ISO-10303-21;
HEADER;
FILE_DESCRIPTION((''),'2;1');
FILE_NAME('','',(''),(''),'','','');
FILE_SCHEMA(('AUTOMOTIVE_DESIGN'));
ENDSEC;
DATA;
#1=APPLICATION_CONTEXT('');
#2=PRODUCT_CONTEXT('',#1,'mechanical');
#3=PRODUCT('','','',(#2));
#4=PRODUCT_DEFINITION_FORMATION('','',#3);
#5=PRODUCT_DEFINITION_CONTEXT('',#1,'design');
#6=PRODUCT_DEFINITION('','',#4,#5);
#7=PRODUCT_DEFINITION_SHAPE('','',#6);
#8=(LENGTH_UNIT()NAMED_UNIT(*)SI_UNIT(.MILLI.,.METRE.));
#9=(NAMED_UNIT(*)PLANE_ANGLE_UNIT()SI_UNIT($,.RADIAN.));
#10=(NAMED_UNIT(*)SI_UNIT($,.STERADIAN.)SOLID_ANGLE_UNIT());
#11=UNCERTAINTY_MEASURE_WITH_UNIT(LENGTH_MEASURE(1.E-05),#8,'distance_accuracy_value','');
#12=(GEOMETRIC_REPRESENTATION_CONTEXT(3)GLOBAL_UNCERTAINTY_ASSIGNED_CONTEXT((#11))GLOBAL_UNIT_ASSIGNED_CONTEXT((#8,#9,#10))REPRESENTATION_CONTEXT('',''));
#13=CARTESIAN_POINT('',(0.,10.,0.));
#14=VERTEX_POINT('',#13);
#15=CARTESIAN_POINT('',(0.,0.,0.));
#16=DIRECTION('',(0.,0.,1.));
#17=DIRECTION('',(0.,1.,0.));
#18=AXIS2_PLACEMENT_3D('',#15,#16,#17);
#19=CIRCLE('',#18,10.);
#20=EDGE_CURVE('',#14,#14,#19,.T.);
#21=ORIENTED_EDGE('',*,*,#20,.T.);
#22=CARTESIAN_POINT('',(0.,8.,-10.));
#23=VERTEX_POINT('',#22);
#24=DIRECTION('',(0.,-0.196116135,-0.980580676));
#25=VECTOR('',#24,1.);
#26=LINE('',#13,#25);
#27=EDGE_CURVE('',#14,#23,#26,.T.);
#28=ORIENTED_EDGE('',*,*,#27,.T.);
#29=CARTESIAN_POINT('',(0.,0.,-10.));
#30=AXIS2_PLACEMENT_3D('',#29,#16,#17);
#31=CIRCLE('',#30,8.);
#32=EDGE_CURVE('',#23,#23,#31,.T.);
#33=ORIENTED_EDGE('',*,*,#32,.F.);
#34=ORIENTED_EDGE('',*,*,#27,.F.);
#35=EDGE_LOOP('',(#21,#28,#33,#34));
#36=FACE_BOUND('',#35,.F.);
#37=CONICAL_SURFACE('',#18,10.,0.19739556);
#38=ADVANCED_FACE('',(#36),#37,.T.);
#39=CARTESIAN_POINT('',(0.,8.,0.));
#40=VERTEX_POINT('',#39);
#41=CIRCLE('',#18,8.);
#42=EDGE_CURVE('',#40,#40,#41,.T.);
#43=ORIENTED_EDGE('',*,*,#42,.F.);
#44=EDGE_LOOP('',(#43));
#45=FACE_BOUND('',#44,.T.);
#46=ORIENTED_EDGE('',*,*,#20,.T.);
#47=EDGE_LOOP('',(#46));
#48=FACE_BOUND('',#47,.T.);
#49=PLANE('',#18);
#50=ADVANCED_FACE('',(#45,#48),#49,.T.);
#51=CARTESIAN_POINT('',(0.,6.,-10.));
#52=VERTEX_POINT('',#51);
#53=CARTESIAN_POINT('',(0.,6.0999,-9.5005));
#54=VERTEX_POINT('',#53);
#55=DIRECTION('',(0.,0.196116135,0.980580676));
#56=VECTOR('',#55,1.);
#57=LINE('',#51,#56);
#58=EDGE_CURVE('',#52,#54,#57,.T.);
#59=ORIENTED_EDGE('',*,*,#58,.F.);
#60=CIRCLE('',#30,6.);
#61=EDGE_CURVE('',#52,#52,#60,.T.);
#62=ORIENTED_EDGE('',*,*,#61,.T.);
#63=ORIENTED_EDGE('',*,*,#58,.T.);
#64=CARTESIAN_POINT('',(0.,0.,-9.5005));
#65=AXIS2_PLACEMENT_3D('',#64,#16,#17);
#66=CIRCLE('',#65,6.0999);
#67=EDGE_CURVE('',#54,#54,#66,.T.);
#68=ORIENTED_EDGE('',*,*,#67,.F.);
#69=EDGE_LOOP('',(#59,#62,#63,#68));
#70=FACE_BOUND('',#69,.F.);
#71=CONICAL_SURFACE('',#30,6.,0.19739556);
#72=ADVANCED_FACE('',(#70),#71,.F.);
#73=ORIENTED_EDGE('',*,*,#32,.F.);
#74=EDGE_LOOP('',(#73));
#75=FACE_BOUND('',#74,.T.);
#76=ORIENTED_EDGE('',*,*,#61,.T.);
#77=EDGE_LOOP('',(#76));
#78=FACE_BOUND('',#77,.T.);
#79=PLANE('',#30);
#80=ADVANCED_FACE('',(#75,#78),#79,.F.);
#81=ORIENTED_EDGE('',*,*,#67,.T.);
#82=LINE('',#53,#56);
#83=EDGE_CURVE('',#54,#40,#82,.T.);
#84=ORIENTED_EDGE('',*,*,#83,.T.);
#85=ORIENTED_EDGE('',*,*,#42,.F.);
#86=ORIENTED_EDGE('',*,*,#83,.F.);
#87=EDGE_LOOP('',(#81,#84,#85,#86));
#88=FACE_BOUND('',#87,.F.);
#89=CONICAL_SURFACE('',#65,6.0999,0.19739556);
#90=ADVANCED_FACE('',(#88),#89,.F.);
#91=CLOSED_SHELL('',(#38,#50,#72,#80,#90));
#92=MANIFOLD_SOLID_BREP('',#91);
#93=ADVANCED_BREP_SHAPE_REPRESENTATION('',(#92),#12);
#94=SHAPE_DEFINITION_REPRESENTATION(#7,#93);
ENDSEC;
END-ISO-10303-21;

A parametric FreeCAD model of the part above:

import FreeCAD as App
import Part
import Sketcher

V = App.Vector
Q = App.Units.Quantity

doc = App.newDocument("Part")
body = doc.addObject("PartDesign::Body", "Body")

sketch1 = body.newObject("Sketcher::SketchObject", "Sketch")
sketch1.AttachmentSupport = (doc.getObject("YZ_Plane"), [""])
sketch1.MapMode = "FlatFace"
sketch1.addGeometry([
    Part.LineSegment(V(8, -10, 0), V(10, 0, 0)),
    Part.LineSegment(V(10, 0, 0), V(8, 0, 0)),
    Part.LineSegment(V(8, 0, 0), V(6, -10, 0)),
    Part.LineSegment(V(6, -10, 0), V(8, -10, 0)),
], False)
sketch1.addConstraint([
    Sketcher.Constraint("Coincident", 0, 2, 1, 1),
    Sketcher.Constraint("Coincident", 1, 2, 2, 1),
    Sketcher.Constraint("Coincident", 2, 2, 3, 1),
    Sketcher.Constraint("Coincident", 3, 2, 0, 1),
    Sketcher.Constraint("Horizontal", 1),
    Sketcher.Constraint("Horizontal", 3),
    Sketcher.Constraint("PointOnObject", 0, 2, -1),
    Sketcher.Constraint("Parallel", 0, 2),
    Sketcher.Constraint("Vertical", 1, 2, 3, 2),
    Sketcher.Constraint("DistanceX", 1, 2, 1, 1, Q("2 mm")),
    Sketcher.Constraint("DistanceX", -1, 1, 0, 2, Q("10 mm")),
    Sketcher.Constraint("DistanceY", 2, 2, -1, 1, Q("10 mm")),
])
revolution = body.newObject("PartDesign::Revolution", "Revolution")
revolution.Profile = sketch1
revolution.ReferenceAxis = (sketch1, ["V_Axis"])
revolution.Angle = 360

doc.recompute()
